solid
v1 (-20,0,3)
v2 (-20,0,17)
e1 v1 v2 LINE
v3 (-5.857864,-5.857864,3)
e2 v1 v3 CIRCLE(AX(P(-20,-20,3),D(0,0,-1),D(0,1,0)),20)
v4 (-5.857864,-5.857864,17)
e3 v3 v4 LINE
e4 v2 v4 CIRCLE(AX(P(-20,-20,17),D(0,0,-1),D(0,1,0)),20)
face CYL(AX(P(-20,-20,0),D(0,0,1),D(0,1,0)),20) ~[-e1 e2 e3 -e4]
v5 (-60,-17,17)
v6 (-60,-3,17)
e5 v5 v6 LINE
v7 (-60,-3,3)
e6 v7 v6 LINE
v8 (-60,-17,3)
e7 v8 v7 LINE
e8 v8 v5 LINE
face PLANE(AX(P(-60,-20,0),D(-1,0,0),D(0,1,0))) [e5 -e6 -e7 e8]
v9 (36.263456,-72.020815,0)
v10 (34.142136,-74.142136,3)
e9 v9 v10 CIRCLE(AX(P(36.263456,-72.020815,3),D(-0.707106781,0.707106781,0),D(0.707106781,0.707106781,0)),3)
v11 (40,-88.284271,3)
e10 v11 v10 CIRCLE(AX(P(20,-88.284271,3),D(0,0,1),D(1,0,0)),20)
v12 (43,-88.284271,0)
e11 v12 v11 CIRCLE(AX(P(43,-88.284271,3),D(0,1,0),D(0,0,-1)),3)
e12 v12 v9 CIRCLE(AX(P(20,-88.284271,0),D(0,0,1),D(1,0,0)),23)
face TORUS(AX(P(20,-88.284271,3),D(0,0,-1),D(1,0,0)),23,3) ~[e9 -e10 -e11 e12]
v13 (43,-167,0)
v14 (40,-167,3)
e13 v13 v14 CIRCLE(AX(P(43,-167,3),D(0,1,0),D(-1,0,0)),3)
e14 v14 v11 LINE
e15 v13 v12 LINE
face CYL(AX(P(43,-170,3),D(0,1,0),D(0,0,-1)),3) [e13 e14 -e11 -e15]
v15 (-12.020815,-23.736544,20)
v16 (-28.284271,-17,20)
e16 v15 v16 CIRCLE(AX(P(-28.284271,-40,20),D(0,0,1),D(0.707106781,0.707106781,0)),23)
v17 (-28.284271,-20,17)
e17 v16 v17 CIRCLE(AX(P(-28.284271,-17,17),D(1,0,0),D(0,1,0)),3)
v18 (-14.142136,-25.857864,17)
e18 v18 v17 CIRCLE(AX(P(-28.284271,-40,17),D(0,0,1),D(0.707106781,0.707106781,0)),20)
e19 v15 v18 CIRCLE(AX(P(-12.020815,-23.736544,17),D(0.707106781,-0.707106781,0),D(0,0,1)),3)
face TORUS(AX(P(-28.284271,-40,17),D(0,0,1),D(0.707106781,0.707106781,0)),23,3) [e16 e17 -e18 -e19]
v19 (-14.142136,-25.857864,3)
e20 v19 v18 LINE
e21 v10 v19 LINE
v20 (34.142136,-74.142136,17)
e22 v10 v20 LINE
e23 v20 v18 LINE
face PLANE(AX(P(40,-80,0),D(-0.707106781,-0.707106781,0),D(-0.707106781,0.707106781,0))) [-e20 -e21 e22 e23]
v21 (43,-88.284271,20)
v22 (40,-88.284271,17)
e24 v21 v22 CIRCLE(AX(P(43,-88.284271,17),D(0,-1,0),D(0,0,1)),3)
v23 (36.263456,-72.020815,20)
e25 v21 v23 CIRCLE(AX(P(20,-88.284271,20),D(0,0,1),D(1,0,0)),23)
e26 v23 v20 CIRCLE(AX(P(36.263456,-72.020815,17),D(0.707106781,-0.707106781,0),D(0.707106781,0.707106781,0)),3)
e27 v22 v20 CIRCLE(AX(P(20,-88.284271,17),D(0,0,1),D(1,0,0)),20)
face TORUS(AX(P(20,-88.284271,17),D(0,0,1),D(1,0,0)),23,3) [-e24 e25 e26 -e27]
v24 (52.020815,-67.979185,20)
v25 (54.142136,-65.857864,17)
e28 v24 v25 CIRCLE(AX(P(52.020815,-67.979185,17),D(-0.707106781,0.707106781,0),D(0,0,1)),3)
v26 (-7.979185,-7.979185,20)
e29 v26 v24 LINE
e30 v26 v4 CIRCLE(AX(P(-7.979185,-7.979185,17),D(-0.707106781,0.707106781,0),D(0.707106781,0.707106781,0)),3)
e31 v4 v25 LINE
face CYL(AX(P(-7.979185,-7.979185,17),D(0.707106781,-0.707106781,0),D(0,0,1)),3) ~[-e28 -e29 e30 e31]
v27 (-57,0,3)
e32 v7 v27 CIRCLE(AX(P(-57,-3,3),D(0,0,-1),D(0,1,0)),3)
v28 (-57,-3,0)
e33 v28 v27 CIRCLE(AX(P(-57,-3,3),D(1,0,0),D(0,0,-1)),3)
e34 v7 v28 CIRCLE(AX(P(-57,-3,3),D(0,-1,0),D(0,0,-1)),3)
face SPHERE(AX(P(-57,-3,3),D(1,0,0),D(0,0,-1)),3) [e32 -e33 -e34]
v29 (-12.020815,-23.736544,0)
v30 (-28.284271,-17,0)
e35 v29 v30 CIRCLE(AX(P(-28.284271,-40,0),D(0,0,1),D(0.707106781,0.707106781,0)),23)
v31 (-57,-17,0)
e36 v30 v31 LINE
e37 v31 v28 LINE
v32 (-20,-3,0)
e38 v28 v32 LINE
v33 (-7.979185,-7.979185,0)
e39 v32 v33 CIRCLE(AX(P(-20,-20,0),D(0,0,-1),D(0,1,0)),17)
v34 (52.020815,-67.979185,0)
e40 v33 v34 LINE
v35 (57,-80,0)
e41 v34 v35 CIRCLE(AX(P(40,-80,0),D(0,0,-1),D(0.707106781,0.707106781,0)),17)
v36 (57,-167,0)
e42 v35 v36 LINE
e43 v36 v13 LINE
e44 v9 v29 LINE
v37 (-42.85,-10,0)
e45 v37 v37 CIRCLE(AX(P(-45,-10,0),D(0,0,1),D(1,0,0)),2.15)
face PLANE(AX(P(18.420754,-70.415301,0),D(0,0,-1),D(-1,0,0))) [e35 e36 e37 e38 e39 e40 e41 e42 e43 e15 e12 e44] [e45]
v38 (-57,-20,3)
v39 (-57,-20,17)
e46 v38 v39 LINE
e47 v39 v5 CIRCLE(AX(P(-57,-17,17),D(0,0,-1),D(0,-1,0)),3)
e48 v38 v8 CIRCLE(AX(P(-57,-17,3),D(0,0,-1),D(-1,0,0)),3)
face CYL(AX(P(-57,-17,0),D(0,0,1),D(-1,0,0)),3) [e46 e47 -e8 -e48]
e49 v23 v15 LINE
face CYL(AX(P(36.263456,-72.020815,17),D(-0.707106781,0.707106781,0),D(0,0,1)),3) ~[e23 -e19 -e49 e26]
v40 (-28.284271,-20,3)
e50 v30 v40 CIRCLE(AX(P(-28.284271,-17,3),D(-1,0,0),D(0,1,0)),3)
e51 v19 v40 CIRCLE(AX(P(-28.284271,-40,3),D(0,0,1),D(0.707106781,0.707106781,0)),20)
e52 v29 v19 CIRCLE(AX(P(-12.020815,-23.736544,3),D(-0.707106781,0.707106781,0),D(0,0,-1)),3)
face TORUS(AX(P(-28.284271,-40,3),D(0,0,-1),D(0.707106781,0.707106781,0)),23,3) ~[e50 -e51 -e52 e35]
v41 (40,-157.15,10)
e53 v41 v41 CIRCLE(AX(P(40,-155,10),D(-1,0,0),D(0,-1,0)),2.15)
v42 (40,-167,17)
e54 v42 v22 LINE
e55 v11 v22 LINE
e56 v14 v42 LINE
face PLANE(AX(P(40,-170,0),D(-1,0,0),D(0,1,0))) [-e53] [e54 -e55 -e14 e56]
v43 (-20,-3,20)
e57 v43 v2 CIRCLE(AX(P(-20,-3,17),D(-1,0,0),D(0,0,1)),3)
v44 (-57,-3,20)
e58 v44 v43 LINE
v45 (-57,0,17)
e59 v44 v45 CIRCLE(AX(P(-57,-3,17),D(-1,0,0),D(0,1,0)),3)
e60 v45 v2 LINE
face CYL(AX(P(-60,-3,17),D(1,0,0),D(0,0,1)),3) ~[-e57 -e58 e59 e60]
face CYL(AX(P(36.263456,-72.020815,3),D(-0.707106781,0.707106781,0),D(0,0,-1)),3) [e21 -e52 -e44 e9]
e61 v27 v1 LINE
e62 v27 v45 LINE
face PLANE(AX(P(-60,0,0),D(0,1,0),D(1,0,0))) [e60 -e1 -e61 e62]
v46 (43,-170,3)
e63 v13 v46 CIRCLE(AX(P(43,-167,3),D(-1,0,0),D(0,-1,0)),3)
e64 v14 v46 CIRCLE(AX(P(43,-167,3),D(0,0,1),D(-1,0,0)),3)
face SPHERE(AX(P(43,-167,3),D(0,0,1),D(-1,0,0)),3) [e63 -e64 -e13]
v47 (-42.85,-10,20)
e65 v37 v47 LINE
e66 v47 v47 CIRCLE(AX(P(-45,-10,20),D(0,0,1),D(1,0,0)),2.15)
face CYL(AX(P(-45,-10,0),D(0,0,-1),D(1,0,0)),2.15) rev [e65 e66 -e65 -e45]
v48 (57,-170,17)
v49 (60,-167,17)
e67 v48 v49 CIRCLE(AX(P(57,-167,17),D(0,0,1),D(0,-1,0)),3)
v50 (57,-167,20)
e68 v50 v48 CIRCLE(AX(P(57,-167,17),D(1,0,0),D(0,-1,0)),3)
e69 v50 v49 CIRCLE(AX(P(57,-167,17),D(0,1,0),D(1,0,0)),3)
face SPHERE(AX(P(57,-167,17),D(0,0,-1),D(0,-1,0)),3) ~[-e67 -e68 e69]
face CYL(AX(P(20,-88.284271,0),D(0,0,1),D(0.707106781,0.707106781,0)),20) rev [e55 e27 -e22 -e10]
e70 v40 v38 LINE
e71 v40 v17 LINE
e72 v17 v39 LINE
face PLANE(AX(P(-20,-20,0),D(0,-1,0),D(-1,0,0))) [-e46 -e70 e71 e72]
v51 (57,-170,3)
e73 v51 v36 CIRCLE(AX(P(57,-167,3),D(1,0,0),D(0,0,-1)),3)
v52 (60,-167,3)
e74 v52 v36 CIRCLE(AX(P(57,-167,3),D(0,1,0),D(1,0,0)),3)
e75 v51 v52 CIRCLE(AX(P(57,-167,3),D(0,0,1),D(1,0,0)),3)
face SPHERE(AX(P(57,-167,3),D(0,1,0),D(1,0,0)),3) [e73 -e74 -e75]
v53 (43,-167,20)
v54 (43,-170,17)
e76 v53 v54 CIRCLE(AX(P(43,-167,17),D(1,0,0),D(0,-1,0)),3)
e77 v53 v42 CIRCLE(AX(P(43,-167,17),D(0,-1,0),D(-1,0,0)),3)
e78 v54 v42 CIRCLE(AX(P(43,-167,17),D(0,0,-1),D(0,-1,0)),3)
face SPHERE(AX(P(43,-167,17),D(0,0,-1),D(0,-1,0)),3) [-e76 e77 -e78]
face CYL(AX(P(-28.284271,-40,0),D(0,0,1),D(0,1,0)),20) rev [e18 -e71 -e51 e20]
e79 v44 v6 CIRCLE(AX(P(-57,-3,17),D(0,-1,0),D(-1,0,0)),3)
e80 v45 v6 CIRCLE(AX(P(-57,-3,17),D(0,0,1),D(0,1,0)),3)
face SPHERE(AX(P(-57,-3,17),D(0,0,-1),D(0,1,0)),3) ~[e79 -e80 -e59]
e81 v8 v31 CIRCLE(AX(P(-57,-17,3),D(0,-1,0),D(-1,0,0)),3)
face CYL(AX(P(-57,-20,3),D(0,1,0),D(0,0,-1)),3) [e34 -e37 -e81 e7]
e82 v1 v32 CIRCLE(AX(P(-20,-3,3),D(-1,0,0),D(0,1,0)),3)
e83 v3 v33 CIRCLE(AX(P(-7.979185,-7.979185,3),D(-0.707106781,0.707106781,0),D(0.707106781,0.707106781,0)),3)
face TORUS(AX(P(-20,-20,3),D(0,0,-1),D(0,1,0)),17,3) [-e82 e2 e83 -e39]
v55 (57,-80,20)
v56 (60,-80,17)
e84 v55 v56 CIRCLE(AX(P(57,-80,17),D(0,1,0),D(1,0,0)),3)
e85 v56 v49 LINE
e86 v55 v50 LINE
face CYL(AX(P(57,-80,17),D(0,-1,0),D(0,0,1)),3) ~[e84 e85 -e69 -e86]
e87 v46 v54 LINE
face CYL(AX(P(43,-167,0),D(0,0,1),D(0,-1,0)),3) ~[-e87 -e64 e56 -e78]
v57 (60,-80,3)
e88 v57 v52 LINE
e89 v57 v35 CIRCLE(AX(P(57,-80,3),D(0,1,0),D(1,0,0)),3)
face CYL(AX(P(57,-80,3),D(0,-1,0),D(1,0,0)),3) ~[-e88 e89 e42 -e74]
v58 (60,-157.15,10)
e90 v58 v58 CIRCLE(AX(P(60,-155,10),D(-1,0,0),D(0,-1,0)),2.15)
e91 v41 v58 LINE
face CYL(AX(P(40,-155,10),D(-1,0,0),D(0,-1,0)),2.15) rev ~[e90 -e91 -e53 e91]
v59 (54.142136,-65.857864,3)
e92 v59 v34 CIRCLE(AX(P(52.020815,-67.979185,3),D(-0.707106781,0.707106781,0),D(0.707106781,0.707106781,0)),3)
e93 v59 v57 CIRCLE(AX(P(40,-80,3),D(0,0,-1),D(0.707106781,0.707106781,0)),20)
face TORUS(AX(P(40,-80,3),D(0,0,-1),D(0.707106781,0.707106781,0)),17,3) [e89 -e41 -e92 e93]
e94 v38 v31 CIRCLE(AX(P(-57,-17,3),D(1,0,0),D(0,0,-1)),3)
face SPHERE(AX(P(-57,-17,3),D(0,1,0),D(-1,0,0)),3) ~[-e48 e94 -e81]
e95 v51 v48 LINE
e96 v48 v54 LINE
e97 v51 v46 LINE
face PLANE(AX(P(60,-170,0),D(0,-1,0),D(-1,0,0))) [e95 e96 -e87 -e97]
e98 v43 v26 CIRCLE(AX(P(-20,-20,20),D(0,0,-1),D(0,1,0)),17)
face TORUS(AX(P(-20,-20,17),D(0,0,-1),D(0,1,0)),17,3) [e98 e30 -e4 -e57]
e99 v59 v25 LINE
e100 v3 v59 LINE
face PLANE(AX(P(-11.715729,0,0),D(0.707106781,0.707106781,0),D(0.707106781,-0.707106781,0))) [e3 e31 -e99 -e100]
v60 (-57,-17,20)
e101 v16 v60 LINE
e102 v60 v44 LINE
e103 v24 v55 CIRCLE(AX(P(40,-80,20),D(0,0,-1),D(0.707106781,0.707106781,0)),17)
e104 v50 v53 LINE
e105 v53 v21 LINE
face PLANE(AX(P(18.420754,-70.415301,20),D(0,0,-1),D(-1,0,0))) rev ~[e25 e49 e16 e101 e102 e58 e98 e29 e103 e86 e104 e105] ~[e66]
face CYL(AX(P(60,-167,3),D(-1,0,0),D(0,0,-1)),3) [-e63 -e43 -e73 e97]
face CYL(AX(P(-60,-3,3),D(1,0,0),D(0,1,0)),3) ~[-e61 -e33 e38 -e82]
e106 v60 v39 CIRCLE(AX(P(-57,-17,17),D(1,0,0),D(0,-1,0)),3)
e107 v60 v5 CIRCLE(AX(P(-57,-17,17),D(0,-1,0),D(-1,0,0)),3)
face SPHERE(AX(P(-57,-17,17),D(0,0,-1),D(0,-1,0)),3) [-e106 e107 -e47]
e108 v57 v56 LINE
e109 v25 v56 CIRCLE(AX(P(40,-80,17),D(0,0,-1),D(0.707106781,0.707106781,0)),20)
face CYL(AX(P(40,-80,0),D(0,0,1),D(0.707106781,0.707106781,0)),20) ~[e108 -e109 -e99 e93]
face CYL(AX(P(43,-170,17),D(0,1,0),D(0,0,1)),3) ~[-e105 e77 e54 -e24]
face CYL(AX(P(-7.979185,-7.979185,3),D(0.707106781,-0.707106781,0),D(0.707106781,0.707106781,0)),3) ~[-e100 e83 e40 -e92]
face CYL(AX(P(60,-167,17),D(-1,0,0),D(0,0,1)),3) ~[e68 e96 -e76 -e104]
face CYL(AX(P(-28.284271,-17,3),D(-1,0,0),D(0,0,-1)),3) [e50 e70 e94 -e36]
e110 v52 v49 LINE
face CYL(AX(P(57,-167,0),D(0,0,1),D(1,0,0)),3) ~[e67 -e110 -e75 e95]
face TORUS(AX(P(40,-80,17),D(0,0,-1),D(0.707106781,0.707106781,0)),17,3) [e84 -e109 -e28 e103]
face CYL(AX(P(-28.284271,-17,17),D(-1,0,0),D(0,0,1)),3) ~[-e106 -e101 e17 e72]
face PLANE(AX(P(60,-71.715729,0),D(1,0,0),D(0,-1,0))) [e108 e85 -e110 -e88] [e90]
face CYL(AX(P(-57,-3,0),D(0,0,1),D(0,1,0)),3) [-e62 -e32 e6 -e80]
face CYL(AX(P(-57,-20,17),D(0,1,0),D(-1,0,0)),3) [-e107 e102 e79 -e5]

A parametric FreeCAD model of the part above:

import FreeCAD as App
import Part
import Sketcher

V = App.Vector
Q = App.Units.Quantity


def edges_at(feature, points):
    """Names of the edges that pass closest to the given points."""
    edges = feature.Shape.Edges
    near = lambda p: min(range(len(edges)), key=lambda i: edges[i].distToShape(Part.Vertex(*p))[0])
    return sorted({f"Edge{near(p) + 1}" for p in points})


def add_polygon(sketch, points):
    """Adds a closed chain of lines whose ends are joined by coincident constraints."""
    first, n = sketch.GeometryCount, len(points)
    for a, b in zip(points, points[1:] + points[:1]):
        sketch.addGeometry(Part.LineSegment(App.Vector(*a, 0), App.Vector(*b, 0)), False)
    for i in range(n):
        sketch.addConstraint(Sketcher.Constraint("Coincident", first + i, 2, first + (i + 1) % n, 1))

doc = App.newDocument("Part")
params = doc.addObject("Spreadsheet::Sheet", "Params")
for row, (alias, value) in enumerate([
    ("sketch1_diameter", "4.3 mm"),
    ("sketch1_width", "40 mm"),
    ("sketch1_width2", "20 mm"),
    ("sketch1_height", "90 mm"),
    ("pad1_length", "20 mm"),
    ("fillet_radius", "20 mm"),
    ("sketch2_diameter", "4.3 mm"),
    ("pocket1_length", "20 mm"),
    ("fillet2_radius", "3 mm"),
], start=1):
    params.set(f"A{row}", alias)
    params.set(f"B{row}", "=" + value)
    params.setAlias(f"B{row}", alias)

body = doc.addObject("PartDesign::Body", "Body")

sketch1 = body.newObject("Sketcher::SketchObject", "Sketch")
sketch1.AttachmentSupport = (doc.getObject("XY_Plane"), [""])
sketch1.MapMode = "FlatFace"
add_polygon(sketch1, [(-11.7, 0), (-60, 0), (-60, -20), (-20, -20), (40, -80), (40, -170), (60, -170), (60, -71.7)])
sketch1.addGeometry(Part.Circle(V(-45, -10, 0), V(0, 0, 1), 2.1), False)
sketch1.addConstraint(Sketcher.Constraint("Horizontal", 0))
sketch1.addConstraint(Sketcher.Constraint("Vertical", 1))
sketch1.addConstraint(Sketcher.Constraint("Horizontal", 2))
sketch1.addConstraint(Sketcher.Constraint("Vertical", 4))
sketch1.addConstraint(Sketcher.Constraint("Horizontal", 5))
sketch1.addConstraint(Sketcher.Constraint("Vertical", 6))
sketch1.addConstraint(Sketcher.Constraint("PointOnObject", 0, 2, -1))
sketch1.addConstraint(Sketcher.Constraint("Parallel", 3, 7))
sketch1.addConstraint(Sketcher.Constraint("Equal", 5, 1))
sketch1.addConstraint(Sketcher.Constraint("Diameter", 8, Q("4.3 mm")))
sketch1.addConstraint(Sketcher.Constraint("DistanceX", 2, 1, 2, 2, Q("40 mm")))
sketch1.addConstraint(Sketcher.Constraint("DistanceX", 5, 1, 5, 2, Q("20 mm")))
sketch1.addConstraint(Sketcher.Constraint("DistanceY", 4, 2, 4, 1, Q("90 mm")))
sketch1.addConstraint(Sketcher.Constraint("Angle", 3, Q("-45 deg")))
sketch1.addConstraint(Sketcher.Constraint("DistanceX", 8, 3, -1, 1, Q("45 mm")))
sketch1.addConstraint(Sketcher.Constraint("DistanceY", 8, 3, -1, 1, Q("10 mm")))
sketch1.addConstraint(Sketcher.Constraint("DistanceX", 0, 2, -1, 1, Q("60 mm")))
sketch1.addConstraint(Sketcher.Constraint("DistanceX", -1, 1, 3, 2, Q("40 mm")))
sketch1.addConstraint(Sketcher.Constraint("DistanceX", 0, 2, 0, 1, Q("48.284271 mm")))
sketch1.setExpression("Constraints[17]", "Params.sketch1_diameter")
sketch1.setExpression("Constraints[18]", "Params.sketch1_width")
sketch1.setExpression("Constraints[19]", "Params.sketch1_width2")
sketch1.setExpression("Constraints[20]", "Params.sketch1_height")
pad1 = body.newObject("PartDesign::Pad", "Pad")
pad1.Profile = sketch1
pad1.setExpression("Length", "Params.pad1_length")
doc.recompute()

fillet = body.newObject("PartDesign::Fillet", "Fillet")
fillet.Base = (pad1, edges_at(pad1, [
    (-20, -20, 10),
    (40, -80, 10),
    (60, -71.716, 10),
    (-11.716, 0, 10),
]))
fillet.setExpression("Radius", "Params.fillet_radius")

sketch2 = body.newObject("Sketcher::SketchObject", "Sketch001")
sketch2.AttachmentSupport = (doc.getObject("YZ_Plane"), [""])
sketch2.MapMode = "FlatFace"
sketch2.AttachmentOffset = App.Placement(V(0, 0, 40), App.Rotation())
sketch2.addGeometry(Part.Circle(V(-155, 10, 0), V(0, 0, 1), 2.1), False)
sketch2.addConstraint(Sketcher.Constraint("Diameter", 0, Q("4.3 mm")))
sketch2.addConstraint(Sketcher.Constraint("DistanceX", 0, 3, -1, 1, Q("155 mm")))
sketch2.addConstraint(Sketcher.Constraint("DistanceY", -1, 1, 0, 3, Q("10 mm")))
sketch2.setExpression("Constraints[0]", "Params.sketch2_diameter")
pocket1 = body.newObject("PartDesign::Pocket", "Pocket")
pocket1.Profile = sketch2
pocket1.setExpression("Length", "Params.pocket1_length")
pocket1.Reversed = True
doc.recompute()

fillet2 = body.newObject("PartDesign::Fillet", "Fillet001")
fillet2.Base = (pocket1, edges_at(pocket1, [
    (-40, 0, 0),
    (-60, -10, 0),
    (-60, -20, 10),
    (40, -170, 10),
    (60, -170, 10),
    (-60, 0, 10),
    (50, -170, 20),
    (40, -129.142, 20),
    (10, -50, 0),
    (10, -50, 20),
    (24.142, -35.858, 0),
    (24.142, -35.858, 20),
    (60, -125, 0),
    (-44.142, -20, 0),
    (-12.346, -1.522, 0),
    (58.478, -72.346, 0),
    (60, -125, 20),
    (-44.142, -20, 20),
    (-12.346, -1.522, 20),
    (58.478, -72.346, 20),
    (38.478, -80.631, 0),
    (38.478, -80.631, 20),
    (-20.631, -21.522, 0),
    (-20.631, -21.522, 20),
    (-60, -10, 20),
    (-40, 0, 20),
    (40, -129.142, 0),
    (50, -170, 0),
]))
fillet2.setExpression("Radius", "Params.fillet2_radius")

doc.recompute()
